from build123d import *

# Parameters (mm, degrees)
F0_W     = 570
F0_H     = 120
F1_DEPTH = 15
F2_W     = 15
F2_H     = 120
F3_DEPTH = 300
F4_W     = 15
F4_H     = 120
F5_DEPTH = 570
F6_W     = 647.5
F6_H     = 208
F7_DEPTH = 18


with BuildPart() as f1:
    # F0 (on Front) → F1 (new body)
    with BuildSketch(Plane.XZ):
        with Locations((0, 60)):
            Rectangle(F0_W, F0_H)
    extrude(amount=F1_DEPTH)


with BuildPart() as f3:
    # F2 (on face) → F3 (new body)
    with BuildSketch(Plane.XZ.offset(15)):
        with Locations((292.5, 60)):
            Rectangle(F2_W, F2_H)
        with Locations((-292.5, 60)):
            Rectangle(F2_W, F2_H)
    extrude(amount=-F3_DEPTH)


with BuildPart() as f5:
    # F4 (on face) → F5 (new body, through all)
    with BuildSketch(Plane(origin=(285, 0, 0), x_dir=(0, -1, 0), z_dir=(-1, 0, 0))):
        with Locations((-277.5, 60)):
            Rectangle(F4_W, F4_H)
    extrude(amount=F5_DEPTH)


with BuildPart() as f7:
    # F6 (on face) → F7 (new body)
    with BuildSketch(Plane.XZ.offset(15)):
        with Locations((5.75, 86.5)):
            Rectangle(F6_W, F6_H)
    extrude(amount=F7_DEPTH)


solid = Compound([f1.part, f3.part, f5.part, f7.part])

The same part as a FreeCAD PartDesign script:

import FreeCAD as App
import Part
import Sketcher

doc = App.newDocument("Part")
params = doc.addObject("Spreadsheet::Sheet", "Params")
for row, (alias, value) in enumerate([
    ("sketch1_width", "570 mm"),
    ("sketch1_height", "120 mm"),
    ("pad1_length", "15 mm"),
    ("sketch2_width", "15 mm"),
    ("sketch2_height", "120 mm"),
    ("pad2_length", "300 mm"),
    ("sketch3_width", "15 mm"),
    ("sketch3_height", "120 mm"),
    ("pad3_length", "570 mm"),
    ("sketch4_height", "208 mm"),
    ("sketch4_width", "647.5 mm"),
    ("pad4_length", "18 mm"),
], start=1):
    params.set(f"A{row}", alias)
    params.set(f"B{row}", "=" + value)
    params.setAlias(f"B{row}", alias)

body = doc.addObject("PartDesign::Body", "Body")

# Sketch on XZ plane
sketch1 = body.newObject("Sketcher::SketchObject", "Sketch")
sketch1.AttachmentSupport = (doc.getObject("XZ_Plane"), [""])
sketch1.MapMode = "FlatFace"
sketch1.addGeometry([
    Part.LineSegment(App.Vector(-285, 120, 0), App.Vector(-285, 0, 0)),
    Part.LineSegment(App.Vector(-285, 0, 0), App.Vector(285, 0, 0)),
    Part.LineSegment(App.Vector(285, 0, 0), App.Vector(285, 120, 0)),
    Part.LineSegment(App.Vector(285, 120, 0), App.Vector(-285, 120, 0)),
], False)
sketch1.addConstraint([
    Sketcher.Constraint("Coincident", 0, 2, 1, 1),
    Sketcher.Constraint("Coincident", 1, 2, 2, 1),
    Sketcher.Constraint("Coincident", 2, 2, 3, 1),
    Sketcher.Constraint("Coincident", 3, 2, 0, 1),
    Sketcher.Constraint("Vertical", 0),
    Sketcher.Constraint("Horizontal", 1),
    Sketcher.Constraint("Vertical", 2),
    Sketcher.Constraint("Horizontal", 3),
    Sketcher.Constraint("Symmetric", 0, 2, 1, 2, -1, 1),
    Sketcher.Constraint("DistanceX", 1, 1, 1, 2, 570.0),
    Sketcher.Constraint("DistanceY", 0, 2, 0, 1, 120.0),
])
sketch1.setExpression("Constraints[9]", "Params.sketch1_width")
sketch1.setExpression("Constraints[10]", "Params.sketch1_height")
pad1 = body.newObject("PartDesign::Pad", "Pad")
pad1.Profile = sketch1
pad1.setExpression("Length", "Params.pad1_length")
body2 = doc.addObject("PartDesign::Body", "Body001")
body2.AllowCompound = True

# Sketch on XZ plane
sketch2 = body2.newObject("Sketcher::SketchObject", "Sketch001")
sketch2.AttachmentSupport = (doc.getObject("XZ_Plane001"), [""])
sketch2.MapMode = "FlatFace"
sketch2.AttachmentOffset = App.Placement(App.Vector(0, 0, 15), App.Rotation())
sketch2.addGeometry([
    Part.LineSegment(App.Vector(285, 120, 0), App.Vector(285, 0, 0)),  # 0
    Part.LineSegment(App.Vector(285, 0, 0), App.Vector(300, 0, 0)),  # 1
    Part.LineSegment(App.Vector(300, 0, 0), App.Vector(300, 120, 0)),  # 2
    Part.LineSegment(App.Vector(300, 120, 0), App.Vector(285, 120, 0)),  # 3
    Part.LineSegment(App.Vector(-300, 120, 0), App.Vector(-300, 0, 0)),  # 4
    Part.LineSegment(App.Vector(-300, 0, 0), App.Vector(-285, 0, 0)),  # 5
    Part.LineSegment(App.Vector(-285, 0, 0), App.Vector(-285, 120, 0)),  # 6
    Part.LineSegment(App.Vector(-285, 120, 0), App.Vector(-300, 120, 0)),  # 7
], False)
sketch2.addConstraint([
    Sketcher.Constraint("Coincident", 0, 2, 1, 1),
    Sketcher.Constraint("Coincident", 1, 2, 2, 1),
    Sketcher.Constraint("Coincident", 2, 2, 3, 1),
    Sketcher.Constraint("Coincident", 3, 2, 0, 1),
    Sketcher.Constraint("Coincident", 4, 2, 5, 1),
    Sketcher.Constraint("Coincident", 5, 2, 6, 1),
    Sketcher.Constraint("Coincident", 6, 2, 7, 1),
    Sketcher.Constraint("Coincident", 7, 2, 4, 1),
    Sketcher.Constraint("Vertical", 0),
    Sketcher.Constraint("Horizontal", 1),
    Sketcher.Constraint("Vertical", 2),
    Sketcher.Constraint("Horizontal", 3),
    Sketcher.Constraint("Vertical", 4),
    Sketcher.Constraint("Horizontal", 5),
    Sketcher.Constraint("Vertical", 6),
    Sketcher.Constraint("Horizontal", 7),
    Sketcher.Constraint("Symmetric", 1, 2, 4, 2, -1, 1),
    Sketcher.Constraint("Symmetric", 0, 2, 5, 2, -2),
    Sketcher.Constraint("Horizontal", 3, 2, 6, 2),
    Sketcher.Constraint("DistanceX", 1, 1, 1, 2, 15.0),
    Sketcher.Constraint("DistanceY", 0, 2, 0, 1, 120.0),
    Sketcher.Constraint("DistanceX", -1, 1, 0, 2, 285.0),
])
sketch2.setExpression("Constraints[19]", "Params.sketch2_width")
sketch2.setExpression("Constraints[20]", "Params.sketch2_height")
pad2 = body2.newObject("PartDesign::Pad", "Pad001")
pad2.Profile = sketch2
pad2.setExpression("Length", "Params.pad2_length")
pad2.Reversed = True
body3 = doc.addObject("PartDesign::Body", "Body002")

# Sketch on YZ plane
sketch3 = body3.newObject("Sketcher::SketchObject", "Sketch002")
sketch3.AttachmentSupport = (doc.getObject("YZ_Plane002"), [""])
sketch3.MapMode = "FlatFace"
sketch3.AttachmentOffset = App.Placement(App.Vector(0, 0, 285), App.Rotation())
sketch3.addGeometry([
    Part.LineSegment(App.Vector(285, 120, 0), App.Vector(285, 0, 0)),
    Part.LineSegment(App.Vector(285, 0, 0), App.Vector(270, 0, 0)),
    Part.LineSegment(App.Vector(270, 0, 0), App.Vector(270, 120, 0)),
    Part.LineSegment(App.Vector(270, 120, 0), App.Vector(285, 120, 0)),
], False)
sketch3.addConstraint([
    Sketcher.Constraint("Coincident", 0, 2, 1, 1),
    Sketcher.Constraint("Coincident", 1, 2, 2, 1),
    Sketcher.Constraint("Coincident", 2, 2, 3, 1),
    Sketcher.Constraint("Coincident", 3, 2, 0, 1),
    Sketcher.Constraint("Vertical", 0),
    Sketcher.Constraint("Horizontal", 1),
    Sketcher.Constraint("Vertical", 2),
    Sketcher.Constraint("Horizontal", 3),
    Sketcher.Constraint("PointOnObject", 0, 2, -1),
    Sketcher.Constraint("DistanceX", 1, 2, 1, 1, 15.0),
    Sketcher.Constraint("DistanceY", 0, 2, 0, 1, 120.0),
    Sketcher.Constraint("DistanceX", -1, 1, 0, 2, 285.0),
])
sketch3.setExpression("Constraints[9]", "Params.sketch3_width")
sketch3.setExpression("Constraints[10]", "Params.sketch3_height")
pad3 = body3.newObject("PartDesign::Pad", "Pad002")
pad3.Profile = sketch3
pad3.setExpression("Length", "Params.pad3_length")
pad3.Reversed = True
body4 = doc.addObject("PartDesign::Body", "Body003")

# Sketch on XZ plane
sketch4 = body4.newObject("Sketcher::SketchObject", "Sketch003")
sketch4.AttachmentSupport = (doc.getObject("XZ_Plane003"), [""])
sketch4.MapMode = "FlatFace"
sketch4.AttachmentOffset = App.Placement(App.Vector(0, 0, 15), App.Rotation())
sketch4.addGeometry([
    Part.LineSegment(App.Vector(-318, 190.5, 0), App.Vector(-318, -17.5, 0)),
    Part.LineSegment(App.Vector(-318, -17.5, 0), App.Vector(329.5, -17.5, 0)),
    Part.LineSegment(App.Vector(329.5, -17.5, 0), App.Vector(329.5, 190.5, 0)),
    Part.LineSegment(App.Vector(329.5, 190.5, 0), App.Vector(-318, 190.5, 0)),
], False)
sketch4.addConstraint([
    Sketcher.Constraint("Coincident", 0, 2, 1, 1),
    Sketcher.Constraint("Coincident", 1, 2, 2, 1),
    Sketcher.Constraint("Coincident", 2, 2, 3, 1),
    Sketcher.Constraint("Coincident", 3, 2, 0, 1),
    Sketcher.Constraint("Vertical", 0),
    Sketcher.Constraint("Horizontal", 1),
    Sketcher.Constraint("Vertical", 2),
    Sketcher.Constraint("Horizontal", 3),
    Sketcher.Constraint("DistanceY", 0, 2, 0, 1, 208.0),
    Sketcher.Constraint("DistanceX", 1, 1, 1, 2, 647.5),
    Sketcher.Constraint("DistanceX", 0, 2, -1, 1, 318.0),
    Sketcher.Constraint("DistanceY", 0, 2, -1, 1, 17.5),
])
sketch4.setExpression("Constraints[8]", "Params.sketch4_height")
sketch4.setExpression("Constraints[9]", "Params.sketch4_width")
pad4 = body4.newObject("PartDesign::Pad", "Pad003")
pad4.Profile = sketch4
pad4.setExpression("Length", "Params.pad4_length")

doc.recompute()
